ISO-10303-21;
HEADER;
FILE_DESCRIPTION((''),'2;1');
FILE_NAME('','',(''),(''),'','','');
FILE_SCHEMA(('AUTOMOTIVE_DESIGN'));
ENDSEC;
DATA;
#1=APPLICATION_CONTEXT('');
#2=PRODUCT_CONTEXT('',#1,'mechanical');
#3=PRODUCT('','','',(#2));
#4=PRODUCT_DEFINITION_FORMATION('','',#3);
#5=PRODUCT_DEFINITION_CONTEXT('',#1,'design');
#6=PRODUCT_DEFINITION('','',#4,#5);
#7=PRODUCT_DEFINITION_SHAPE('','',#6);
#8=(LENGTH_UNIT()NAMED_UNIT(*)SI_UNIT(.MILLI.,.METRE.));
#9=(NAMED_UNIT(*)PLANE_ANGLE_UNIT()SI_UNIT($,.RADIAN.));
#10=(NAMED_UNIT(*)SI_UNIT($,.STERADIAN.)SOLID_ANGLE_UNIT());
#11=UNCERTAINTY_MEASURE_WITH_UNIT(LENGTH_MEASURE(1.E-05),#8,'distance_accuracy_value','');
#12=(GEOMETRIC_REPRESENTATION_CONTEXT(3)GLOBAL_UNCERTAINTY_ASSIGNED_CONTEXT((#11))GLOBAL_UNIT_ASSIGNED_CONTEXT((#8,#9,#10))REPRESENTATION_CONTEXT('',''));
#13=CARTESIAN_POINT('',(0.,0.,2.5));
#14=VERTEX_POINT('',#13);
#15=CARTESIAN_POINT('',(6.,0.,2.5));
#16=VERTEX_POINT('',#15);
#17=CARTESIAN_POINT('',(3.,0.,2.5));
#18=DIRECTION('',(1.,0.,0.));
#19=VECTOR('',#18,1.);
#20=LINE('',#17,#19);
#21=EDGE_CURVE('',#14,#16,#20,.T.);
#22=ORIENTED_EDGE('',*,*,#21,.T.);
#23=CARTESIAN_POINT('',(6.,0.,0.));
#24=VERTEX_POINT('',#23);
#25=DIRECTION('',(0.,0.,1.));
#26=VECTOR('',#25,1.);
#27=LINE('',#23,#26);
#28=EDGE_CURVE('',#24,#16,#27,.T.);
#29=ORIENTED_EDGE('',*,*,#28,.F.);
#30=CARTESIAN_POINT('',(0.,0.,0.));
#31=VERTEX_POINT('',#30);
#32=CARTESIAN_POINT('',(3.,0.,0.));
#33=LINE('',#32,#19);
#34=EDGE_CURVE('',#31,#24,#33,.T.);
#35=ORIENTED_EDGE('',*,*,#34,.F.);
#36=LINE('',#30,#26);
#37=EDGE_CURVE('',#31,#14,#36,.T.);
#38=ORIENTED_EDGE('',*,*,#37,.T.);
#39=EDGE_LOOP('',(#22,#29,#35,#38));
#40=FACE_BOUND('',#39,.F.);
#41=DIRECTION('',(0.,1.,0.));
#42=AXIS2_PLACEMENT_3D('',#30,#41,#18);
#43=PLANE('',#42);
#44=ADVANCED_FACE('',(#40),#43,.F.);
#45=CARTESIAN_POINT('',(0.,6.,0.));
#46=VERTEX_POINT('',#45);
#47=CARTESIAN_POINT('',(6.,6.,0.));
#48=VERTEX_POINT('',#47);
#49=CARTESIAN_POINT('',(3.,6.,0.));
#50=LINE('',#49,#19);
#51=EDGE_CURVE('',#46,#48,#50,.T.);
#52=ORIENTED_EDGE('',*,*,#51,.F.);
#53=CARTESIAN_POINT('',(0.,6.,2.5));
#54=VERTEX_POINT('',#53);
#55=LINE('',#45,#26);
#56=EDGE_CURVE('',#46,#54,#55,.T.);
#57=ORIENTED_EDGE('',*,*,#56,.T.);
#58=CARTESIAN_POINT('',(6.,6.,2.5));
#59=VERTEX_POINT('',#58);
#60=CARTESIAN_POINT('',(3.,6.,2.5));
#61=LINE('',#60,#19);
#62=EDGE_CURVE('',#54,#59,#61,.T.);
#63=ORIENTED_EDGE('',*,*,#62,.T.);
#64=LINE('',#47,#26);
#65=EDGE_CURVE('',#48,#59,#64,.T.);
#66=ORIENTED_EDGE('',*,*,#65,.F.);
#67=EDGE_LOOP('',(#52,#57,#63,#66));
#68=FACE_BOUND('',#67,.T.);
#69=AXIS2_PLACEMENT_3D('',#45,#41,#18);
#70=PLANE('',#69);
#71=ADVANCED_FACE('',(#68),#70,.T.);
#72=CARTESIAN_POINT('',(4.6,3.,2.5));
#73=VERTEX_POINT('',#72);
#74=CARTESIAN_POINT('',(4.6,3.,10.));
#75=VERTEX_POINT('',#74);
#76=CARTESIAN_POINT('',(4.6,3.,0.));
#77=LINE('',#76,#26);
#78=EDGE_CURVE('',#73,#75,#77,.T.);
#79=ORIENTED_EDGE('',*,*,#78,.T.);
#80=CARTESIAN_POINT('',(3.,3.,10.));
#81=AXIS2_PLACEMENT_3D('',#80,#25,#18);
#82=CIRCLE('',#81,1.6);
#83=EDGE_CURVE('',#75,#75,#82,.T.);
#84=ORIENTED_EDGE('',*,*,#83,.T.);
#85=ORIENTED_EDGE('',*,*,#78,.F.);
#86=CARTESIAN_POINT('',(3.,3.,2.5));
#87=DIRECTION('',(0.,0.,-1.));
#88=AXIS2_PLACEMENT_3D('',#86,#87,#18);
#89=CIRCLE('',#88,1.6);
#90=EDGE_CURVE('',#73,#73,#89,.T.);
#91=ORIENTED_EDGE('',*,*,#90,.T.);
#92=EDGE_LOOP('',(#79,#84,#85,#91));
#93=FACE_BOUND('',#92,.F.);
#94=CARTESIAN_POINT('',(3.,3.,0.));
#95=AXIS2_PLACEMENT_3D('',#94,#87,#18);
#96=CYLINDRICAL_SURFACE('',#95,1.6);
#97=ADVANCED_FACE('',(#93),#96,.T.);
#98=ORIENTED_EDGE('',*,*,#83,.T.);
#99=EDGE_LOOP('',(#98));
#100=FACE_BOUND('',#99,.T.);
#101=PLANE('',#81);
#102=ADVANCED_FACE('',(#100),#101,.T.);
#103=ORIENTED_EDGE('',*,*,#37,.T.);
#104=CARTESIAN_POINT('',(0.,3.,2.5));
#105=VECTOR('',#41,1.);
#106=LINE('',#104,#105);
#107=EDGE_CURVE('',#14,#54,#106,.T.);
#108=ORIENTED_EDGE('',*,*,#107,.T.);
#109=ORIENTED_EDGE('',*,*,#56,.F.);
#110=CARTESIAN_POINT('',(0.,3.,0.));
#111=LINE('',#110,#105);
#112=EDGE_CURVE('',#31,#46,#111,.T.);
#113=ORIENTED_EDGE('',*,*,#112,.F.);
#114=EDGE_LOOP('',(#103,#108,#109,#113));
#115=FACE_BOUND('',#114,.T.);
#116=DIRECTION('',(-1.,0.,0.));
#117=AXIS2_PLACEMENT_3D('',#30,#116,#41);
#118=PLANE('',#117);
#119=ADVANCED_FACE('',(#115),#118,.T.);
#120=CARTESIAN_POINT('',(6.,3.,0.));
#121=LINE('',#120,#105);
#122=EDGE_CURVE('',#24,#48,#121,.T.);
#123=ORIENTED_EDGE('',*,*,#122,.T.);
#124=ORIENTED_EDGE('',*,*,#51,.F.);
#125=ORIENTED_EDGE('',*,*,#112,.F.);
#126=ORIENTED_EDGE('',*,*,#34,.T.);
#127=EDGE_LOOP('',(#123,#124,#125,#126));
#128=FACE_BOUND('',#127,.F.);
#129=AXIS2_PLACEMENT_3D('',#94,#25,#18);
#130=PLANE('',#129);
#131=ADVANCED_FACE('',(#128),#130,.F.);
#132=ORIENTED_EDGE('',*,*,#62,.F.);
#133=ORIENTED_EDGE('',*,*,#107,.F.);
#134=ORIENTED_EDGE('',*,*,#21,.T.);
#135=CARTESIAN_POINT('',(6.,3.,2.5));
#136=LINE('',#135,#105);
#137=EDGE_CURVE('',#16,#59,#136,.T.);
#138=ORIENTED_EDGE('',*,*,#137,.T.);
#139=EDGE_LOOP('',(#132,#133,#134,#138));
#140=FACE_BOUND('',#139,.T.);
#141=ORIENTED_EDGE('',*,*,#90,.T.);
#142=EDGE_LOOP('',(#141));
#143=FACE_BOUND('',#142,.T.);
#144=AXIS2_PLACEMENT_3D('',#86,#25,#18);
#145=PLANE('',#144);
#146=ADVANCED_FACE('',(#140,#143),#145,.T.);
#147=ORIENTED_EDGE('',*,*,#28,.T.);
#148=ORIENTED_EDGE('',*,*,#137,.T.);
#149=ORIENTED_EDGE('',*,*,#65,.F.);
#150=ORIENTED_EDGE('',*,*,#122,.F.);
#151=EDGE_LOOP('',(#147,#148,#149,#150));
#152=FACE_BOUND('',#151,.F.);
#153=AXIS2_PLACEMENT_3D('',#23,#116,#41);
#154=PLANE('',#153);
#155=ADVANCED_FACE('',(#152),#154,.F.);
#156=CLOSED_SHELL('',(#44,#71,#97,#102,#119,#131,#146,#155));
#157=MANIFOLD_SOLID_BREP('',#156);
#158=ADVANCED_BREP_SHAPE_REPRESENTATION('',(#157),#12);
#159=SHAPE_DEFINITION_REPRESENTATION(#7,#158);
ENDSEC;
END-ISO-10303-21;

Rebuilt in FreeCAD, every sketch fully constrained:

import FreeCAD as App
import Part
import Sketcher
from FreeCAD import Vector

doc = App.newDocument("Part")
body = doc.addObject("PartDesign::Body", "Body")

# Sketch on XY plane
sketch1 = body.newObject("Sketcher::SketchObject", "Sketch")
sketch1.AttachmentSupport = (doc.getObject("XY_Plane"), [""])
sketch1.MapMode = "FlatFace"
sketch1.addGeometry([
    Part.LineSegment(Vector(0, 6, 0), Vector(0, 0, 0)),
    Part.LineSegment(Vector(0, 0, 0), Vector(6, 0, 0)),
    Part.LineSegment(Vector(6, 0, 0), Vector(6, 6, 0)),
    Part.LineSegment(Vector(6, 6, 0), Vector(0, 6, 0)),
], False)
sketch1.addConstraint([
    Sketcher.Constraint("Coincident", 0, 2, 1, 1),
    Sketcher.Constraint("Coincident", 1, 2, 2, 1),
    Sketcher.Constraint("Coincident", 2, 2, 3, 1),
    Sketcher.Constraint("Coincident", 3, 2, 0, 1),
    Sketcher.Constraint("Vertical", 0),
    Sketcher.Constraint("Horizontal", 1),
    Sketcher.Constraint("Vertical", 2),
    Sketcher.Constraint("Horizontal", 3),
    Sketcher.Constraint("Coincident", 0, 2, -1, 1),
    Sketcher.Constraint("Equal", 3, 0),
    Sketcher.Constraint("DistanceX", 1, 1, 1, 2, 6.0),
])
pad1 = body.newObject("PartDesign::Pad", "Pad")
pad1.Profile = sketch1
pad1.Length = 2.5
body2 = doc.addObject("PartDesign::Body", "Body001")

# Sketch on XY plane
sketch2 = body2.newObject("Sketcher::SketchObject", "Sketch001")
sketch2.AttachmentSupport = (doc.getObject("XY_Plane001"), [""])
sketch2.MapMode = "FlatFace"
sketch2.addGeometry(Part.Circle(Vector(3, 3, 0), Vector(0, 0, 1), 1.6), False)
sketch2.addConstraint([
    Sketcher.Constraint("Diameter", 0, 3.2),
    Sketcher.Constraint("DistanceX", -1, 1, 0, 3, 3.0),
    Sketcher.Constraint("DistanceY", -1, 1, 0, 3, 3.0),
])
pad2 = body2.newObject("PartDesign::Pad", "Pad001")
pad2.Profile = sketch2
pad2.Length = 10
doc.recompute()

boolean = body2.newObject("PartDesign::Boolean", "Boolean")
boolean.Type = "Fuse"
boolean.addObjects([body])

doc.recompute()
